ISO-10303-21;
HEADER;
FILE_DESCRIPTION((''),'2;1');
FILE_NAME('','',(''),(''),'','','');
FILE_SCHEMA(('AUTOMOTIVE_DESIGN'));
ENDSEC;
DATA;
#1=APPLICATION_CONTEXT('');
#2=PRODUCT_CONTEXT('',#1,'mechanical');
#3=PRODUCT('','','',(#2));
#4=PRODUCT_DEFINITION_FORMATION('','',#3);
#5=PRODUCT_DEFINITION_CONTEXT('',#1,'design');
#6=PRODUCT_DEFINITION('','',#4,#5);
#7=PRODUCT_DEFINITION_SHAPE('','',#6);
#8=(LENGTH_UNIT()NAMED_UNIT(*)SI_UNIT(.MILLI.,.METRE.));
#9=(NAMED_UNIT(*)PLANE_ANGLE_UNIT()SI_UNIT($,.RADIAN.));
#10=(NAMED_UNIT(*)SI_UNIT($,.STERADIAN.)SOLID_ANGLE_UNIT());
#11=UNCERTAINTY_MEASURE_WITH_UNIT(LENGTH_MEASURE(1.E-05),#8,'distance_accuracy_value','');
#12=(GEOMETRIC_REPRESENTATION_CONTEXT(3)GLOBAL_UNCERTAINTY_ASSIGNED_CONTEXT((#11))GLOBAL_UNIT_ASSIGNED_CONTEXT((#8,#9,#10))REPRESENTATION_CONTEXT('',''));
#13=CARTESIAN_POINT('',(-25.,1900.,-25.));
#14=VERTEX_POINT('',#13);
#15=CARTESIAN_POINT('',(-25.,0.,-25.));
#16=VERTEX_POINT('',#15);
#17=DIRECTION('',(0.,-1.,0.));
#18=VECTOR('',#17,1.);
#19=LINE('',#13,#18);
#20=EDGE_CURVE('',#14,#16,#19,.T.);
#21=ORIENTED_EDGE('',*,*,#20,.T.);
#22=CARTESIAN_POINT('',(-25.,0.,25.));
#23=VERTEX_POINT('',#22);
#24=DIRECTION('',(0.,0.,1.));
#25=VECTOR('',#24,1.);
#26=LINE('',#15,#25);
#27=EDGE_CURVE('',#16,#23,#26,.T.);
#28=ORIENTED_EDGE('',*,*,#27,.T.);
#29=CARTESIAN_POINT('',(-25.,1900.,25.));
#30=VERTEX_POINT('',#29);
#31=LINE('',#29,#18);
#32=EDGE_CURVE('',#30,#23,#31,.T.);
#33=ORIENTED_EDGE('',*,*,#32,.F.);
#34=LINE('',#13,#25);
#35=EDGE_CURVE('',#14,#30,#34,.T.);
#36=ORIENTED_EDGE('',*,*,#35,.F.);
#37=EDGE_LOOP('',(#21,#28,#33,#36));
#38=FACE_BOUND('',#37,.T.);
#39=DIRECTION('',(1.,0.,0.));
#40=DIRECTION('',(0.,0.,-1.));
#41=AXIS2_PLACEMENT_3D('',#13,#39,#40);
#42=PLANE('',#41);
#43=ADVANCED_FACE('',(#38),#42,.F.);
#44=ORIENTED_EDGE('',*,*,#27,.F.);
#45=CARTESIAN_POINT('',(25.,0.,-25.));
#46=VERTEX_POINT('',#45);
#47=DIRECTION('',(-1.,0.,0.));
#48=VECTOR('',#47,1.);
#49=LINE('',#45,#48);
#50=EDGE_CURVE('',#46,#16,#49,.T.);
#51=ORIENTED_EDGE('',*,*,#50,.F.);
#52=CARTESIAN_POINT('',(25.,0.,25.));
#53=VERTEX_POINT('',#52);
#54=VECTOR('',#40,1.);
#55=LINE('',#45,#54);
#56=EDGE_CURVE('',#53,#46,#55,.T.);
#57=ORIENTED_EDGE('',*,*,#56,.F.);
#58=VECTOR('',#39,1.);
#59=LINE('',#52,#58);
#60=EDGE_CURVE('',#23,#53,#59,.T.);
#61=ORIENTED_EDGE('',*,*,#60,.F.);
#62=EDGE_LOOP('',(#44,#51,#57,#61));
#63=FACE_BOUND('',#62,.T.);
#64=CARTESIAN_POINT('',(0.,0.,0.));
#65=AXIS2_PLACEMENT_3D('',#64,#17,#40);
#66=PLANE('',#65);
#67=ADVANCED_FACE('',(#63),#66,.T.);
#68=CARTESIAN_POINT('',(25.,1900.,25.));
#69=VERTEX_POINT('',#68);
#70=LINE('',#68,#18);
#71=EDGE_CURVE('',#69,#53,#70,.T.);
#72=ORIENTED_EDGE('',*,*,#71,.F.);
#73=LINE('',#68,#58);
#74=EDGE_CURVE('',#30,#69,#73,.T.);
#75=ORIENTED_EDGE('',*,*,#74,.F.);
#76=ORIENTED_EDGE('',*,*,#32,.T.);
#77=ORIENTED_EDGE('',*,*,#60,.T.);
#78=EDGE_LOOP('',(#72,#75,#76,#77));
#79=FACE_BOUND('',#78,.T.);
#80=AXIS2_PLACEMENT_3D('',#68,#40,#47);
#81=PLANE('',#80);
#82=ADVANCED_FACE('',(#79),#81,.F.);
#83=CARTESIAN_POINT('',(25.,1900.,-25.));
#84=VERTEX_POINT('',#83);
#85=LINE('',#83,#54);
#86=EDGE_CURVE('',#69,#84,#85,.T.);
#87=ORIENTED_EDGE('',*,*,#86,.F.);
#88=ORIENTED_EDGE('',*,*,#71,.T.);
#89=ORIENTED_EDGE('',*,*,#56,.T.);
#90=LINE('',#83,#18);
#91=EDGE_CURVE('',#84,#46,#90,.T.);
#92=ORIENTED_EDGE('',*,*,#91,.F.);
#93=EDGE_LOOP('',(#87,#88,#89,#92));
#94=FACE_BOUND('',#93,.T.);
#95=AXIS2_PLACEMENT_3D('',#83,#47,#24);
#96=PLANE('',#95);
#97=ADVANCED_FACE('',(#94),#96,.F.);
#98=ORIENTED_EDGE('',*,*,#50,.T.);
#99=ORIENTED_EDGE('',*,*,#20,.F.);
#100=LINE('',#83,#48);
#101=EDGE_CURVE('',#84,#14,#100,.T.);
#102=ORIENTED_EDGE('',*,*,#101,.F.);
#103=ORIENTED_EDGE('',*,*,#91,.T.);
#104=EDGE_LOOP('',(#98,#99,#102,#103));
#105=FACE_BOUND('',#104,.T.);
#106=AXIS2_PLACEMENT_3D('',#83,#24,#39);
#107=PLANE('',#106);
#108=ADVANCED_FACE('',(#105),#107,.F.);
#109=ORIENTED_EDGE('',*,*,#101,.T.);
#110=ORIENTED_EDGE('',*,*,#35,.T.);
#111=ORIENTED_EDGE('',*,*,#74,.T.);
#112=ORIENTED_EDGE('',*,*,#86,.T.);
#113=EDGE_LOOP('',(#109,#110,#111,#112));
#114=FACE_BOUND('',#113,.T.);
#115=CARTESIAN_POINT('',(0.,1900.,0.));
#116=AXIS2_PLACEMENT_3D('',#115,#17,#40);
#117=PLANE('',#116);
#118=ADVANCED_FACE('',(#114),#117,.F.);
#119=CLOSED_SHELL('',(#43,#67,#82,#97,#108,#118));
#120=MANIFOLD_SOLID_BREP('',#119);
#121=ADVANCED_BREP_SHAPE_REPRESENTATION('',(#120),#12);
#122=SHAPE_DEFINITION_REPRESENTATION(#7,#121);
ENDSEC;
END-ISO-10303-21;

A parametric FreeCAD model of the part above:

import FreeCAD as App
import Part
import Sketcher

V = App.Vector

doc = App.newDocument("Part")
body = doc.addObject("PartDesign::Body", "Body")

# Sketch on XZ plane
sketch1 = body.newObject("Sketcher::SketchObject", "Sketch")
sketch1.AttachmentSupport = (doc.getObject("XZ_Plane"), [""])
sketch1.MapMode = "FlatFace"
sketch1.addGeometry([
    Part.LineSegment(V(-25, -25, 0), V(-25, 25, 0)),
    Part.LineSegment(V(-25, 25, 0), V(25, 25, 0)),
    Part.LineSegment(V(25, 25, 0), V(25, -25, 0)),
    Part.LineSegment(V(25, -25, 0), V(-25, -25, 0)),
], False)
sketch1.addConstraint([
    Sketcher.Constraint("Coincident", 0, 2, 1, 1),
    Sketcher.Constraint("Coincident", 1, 2, 2, 1),
    Sketcher.Constraint("Coincident", 2, 2, 3, 1),
    Sketcher.Constraint("Coincident", 3, 2, 0, 1),
    Sketcher.Constraint("Vertical", 0),
    Sketcher.Constraint("Horizontal", 1),
    Sketcher.Constraint("Vertical", 2),
    Sketcher.Constraint("Horizontal", 3),
    Sketcher.Constraint("Symmetric", 0, 2, 2, 2, -1, 1),
    Sketcher.Constraint("Equal", 3, 0),
    Sketcher.Constraint("DistanceX", 1, 1, 1, 2, 50.0),
])
pad1 = body.newObject("PartDesign::Pad", "Pad")
pad1.Profile = sketch1
pad1.Length = 1900
pad1.Reversed = True

doc.recompute()
